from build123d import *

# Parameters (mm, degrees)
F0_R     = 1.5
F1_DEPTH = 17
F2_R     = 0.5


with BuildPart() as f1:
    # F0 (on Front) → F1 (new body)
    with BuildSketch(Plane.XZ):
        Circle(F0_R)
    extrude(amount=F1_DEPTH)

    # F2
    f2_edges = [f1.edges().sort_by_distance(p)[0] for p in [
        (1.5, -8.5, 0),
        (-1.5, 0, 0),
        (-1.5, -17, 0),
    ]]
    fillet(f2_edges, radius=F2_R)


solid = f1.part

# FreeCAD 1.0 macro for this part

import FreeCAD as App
import Part
import Sketcher
from FreeCAD import Vector
Q = App.Units.Quantity

doc = App.newDocument("Part")
body = doc.addObject("PartDesign::Body", "Body")

# Sketch on XZ plane
sketch1 = body.newObject("Sketcher::SketchObject", "Sketch")
sketch1.AttachmentSupport = (doc.getObject("XZ_Plane"), [""])
sketch1.MapMode = "FlatFace"
sketch1.addGeometry(Part.Circle(Vector(0, 0, 0), Vector(0, 0, 1), 1.5), False)
sketch1.addConstraint(Sketcher.Constraint("Coincident", 0, 3, -1, 1))
sketch1.addConstraint(Sketcher.Constraint("Diameter", 0, Q("3 mm")))
pad1 = body.newObject("PartDesign::Pad", "Pad")
pad1.Profile = sketch1
pad1.Length = 17
doc.recompute()

fillet = body.newObject("PartDesign::Fillet", "Fillet")
fillet.Base = (pad1, ["Edge1"])
fillet.UseAllEdges = True
fillet.Radius = 0.5

doc.recompute()
